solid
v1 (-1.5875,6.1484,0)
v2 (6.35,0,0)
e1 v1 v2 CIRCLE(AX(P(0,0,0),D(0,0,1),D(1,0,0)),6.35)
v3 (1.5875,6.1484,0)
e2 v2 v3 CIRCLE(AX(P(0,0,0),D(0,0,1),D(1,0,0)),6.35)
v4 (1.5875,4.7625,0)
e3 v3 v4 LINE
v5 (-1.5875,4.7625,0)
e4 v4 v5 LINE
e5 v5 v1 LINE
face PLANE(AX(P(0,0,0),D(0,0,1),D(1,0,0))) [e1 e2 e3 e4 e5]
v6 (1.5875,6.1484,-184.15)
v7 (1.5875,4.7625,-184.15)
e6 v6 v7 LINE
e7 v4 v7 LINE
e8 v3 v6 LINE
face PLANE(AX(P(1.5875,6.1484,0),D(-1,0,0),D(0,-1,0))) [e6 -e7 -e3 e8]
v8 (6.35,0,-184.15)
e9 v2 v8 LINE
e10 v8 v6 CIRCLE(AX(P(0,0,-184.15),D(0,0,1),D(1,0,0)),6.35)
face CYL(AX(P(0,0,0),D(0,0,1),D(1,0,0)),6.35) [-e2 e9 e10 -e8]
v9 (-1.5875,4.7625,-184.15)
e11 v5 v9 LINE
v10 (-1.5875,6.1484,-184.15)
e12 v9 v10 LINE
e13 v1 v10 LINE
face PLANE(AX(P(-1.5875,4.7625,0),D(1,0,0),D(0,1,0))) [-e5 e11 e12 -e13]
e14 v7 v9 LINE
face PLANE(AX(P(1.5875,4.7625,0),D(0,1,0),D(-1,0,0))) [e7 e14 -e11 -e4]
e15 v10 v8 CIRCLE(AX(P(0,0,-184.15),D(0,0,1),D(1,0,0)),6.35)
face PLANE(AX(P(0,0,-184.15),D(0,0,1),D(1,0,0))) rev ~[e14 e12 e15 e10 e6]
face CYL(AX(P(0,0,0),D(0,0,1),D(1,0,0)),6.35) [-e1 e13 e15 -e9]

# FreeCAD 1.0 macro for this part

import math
import FreeCAD as App
import Part
import Sketcher
Q = App.Units.Quantity

doc = App.newDocument("Part")
params = doc.addObject("Spreadsheet::Sheet", "Params")
for row, (alias, value) in enumerate([
    ("sketch1_radius", "0.25 in"),
    ("sketch1_width", "0.125 in"),
    ("pad1_length", "7.25 in"),
], start=1):
    params.set(f"A{row}", alias)
    params.set(f"B{row}", "=" + value)
    params.setAlias(f"B{row}", alias)

body = doc.addObject("PartDesign::Body", "Body")

# Sketch on XY plane
sketch1 = doc.addObject("Sketcher::SketchObject", "Sketch")
body.addObject(sketch1)
sketch1.AttachmentSupport = (doc.XY_Plane, [""])
sketch1.MapMode = "FlatFace"
sketch1.addGeometry([
    Part.ArcOfCircle(Part.Circle(App.Vector(0, 0, 0), App.Vector(0, 0, 1), 6.3), math.radians(104), math.radians(436)),
    Part.LineSegment(App.Vector(1.6, 6.1, 0), App.Vector(1.6, 4.8, 0)),
    Part.LineSegment(App.Vector(1.6, 4.8, 0), App.Vector(-1.6, 4.8, 0)),
    Part.LineSegment(App.Vector(-1.6, 4.8, 0), App.Vector(-1.6, 6.1, 0)),
], False)
sketch1.addConstraint([
    Sketcher.Constraint("Coincident", 0, 2, 1, 1),
    Sketcher.Constraint("Coincident", 1, 2, 2, 1),
    Sketcher.Constraint("Coincident", 2, 2, 3, 1),
    Sketcher.Constraint("Coincident", 3, 2, 0, 1),
    Sketcher.Constraint("Vertical", 1),
    Sketcher.Constraint("Horizontal", 2),
    Sketcher.Constraint("Vertical", 3),
    Sketcher.Constraint("Coincident", 0, 3, -1, 1),
    Sketcher.Constraint("Horizontal", 0, 2, 3, 2),
    Sketcher.Constraint("Radius", 0, Q("0.25 in")),
    Sketcher.Constraint("DistanceX", 2, 2, 2, 1, Q("0.125 in")),
    Sketcher.Constraint("DistanceY", -1, 1, 1, 2, Q("0.1875 in")),
])
sketch1.setExpression("Constraints[9]", "Params.sketch1_radius")
sketch1.setExpression("Constraints[10]", "Params.sketch1_width")
pad1 = doc.addObject("PartDesign::Pad", "Pad")
body.addObject(pad1)
pad1.Profile = sketch1
pad1.setExpression("Length", "Params.pad1_length")
pad1.Reversed = True

doc.recompute()
